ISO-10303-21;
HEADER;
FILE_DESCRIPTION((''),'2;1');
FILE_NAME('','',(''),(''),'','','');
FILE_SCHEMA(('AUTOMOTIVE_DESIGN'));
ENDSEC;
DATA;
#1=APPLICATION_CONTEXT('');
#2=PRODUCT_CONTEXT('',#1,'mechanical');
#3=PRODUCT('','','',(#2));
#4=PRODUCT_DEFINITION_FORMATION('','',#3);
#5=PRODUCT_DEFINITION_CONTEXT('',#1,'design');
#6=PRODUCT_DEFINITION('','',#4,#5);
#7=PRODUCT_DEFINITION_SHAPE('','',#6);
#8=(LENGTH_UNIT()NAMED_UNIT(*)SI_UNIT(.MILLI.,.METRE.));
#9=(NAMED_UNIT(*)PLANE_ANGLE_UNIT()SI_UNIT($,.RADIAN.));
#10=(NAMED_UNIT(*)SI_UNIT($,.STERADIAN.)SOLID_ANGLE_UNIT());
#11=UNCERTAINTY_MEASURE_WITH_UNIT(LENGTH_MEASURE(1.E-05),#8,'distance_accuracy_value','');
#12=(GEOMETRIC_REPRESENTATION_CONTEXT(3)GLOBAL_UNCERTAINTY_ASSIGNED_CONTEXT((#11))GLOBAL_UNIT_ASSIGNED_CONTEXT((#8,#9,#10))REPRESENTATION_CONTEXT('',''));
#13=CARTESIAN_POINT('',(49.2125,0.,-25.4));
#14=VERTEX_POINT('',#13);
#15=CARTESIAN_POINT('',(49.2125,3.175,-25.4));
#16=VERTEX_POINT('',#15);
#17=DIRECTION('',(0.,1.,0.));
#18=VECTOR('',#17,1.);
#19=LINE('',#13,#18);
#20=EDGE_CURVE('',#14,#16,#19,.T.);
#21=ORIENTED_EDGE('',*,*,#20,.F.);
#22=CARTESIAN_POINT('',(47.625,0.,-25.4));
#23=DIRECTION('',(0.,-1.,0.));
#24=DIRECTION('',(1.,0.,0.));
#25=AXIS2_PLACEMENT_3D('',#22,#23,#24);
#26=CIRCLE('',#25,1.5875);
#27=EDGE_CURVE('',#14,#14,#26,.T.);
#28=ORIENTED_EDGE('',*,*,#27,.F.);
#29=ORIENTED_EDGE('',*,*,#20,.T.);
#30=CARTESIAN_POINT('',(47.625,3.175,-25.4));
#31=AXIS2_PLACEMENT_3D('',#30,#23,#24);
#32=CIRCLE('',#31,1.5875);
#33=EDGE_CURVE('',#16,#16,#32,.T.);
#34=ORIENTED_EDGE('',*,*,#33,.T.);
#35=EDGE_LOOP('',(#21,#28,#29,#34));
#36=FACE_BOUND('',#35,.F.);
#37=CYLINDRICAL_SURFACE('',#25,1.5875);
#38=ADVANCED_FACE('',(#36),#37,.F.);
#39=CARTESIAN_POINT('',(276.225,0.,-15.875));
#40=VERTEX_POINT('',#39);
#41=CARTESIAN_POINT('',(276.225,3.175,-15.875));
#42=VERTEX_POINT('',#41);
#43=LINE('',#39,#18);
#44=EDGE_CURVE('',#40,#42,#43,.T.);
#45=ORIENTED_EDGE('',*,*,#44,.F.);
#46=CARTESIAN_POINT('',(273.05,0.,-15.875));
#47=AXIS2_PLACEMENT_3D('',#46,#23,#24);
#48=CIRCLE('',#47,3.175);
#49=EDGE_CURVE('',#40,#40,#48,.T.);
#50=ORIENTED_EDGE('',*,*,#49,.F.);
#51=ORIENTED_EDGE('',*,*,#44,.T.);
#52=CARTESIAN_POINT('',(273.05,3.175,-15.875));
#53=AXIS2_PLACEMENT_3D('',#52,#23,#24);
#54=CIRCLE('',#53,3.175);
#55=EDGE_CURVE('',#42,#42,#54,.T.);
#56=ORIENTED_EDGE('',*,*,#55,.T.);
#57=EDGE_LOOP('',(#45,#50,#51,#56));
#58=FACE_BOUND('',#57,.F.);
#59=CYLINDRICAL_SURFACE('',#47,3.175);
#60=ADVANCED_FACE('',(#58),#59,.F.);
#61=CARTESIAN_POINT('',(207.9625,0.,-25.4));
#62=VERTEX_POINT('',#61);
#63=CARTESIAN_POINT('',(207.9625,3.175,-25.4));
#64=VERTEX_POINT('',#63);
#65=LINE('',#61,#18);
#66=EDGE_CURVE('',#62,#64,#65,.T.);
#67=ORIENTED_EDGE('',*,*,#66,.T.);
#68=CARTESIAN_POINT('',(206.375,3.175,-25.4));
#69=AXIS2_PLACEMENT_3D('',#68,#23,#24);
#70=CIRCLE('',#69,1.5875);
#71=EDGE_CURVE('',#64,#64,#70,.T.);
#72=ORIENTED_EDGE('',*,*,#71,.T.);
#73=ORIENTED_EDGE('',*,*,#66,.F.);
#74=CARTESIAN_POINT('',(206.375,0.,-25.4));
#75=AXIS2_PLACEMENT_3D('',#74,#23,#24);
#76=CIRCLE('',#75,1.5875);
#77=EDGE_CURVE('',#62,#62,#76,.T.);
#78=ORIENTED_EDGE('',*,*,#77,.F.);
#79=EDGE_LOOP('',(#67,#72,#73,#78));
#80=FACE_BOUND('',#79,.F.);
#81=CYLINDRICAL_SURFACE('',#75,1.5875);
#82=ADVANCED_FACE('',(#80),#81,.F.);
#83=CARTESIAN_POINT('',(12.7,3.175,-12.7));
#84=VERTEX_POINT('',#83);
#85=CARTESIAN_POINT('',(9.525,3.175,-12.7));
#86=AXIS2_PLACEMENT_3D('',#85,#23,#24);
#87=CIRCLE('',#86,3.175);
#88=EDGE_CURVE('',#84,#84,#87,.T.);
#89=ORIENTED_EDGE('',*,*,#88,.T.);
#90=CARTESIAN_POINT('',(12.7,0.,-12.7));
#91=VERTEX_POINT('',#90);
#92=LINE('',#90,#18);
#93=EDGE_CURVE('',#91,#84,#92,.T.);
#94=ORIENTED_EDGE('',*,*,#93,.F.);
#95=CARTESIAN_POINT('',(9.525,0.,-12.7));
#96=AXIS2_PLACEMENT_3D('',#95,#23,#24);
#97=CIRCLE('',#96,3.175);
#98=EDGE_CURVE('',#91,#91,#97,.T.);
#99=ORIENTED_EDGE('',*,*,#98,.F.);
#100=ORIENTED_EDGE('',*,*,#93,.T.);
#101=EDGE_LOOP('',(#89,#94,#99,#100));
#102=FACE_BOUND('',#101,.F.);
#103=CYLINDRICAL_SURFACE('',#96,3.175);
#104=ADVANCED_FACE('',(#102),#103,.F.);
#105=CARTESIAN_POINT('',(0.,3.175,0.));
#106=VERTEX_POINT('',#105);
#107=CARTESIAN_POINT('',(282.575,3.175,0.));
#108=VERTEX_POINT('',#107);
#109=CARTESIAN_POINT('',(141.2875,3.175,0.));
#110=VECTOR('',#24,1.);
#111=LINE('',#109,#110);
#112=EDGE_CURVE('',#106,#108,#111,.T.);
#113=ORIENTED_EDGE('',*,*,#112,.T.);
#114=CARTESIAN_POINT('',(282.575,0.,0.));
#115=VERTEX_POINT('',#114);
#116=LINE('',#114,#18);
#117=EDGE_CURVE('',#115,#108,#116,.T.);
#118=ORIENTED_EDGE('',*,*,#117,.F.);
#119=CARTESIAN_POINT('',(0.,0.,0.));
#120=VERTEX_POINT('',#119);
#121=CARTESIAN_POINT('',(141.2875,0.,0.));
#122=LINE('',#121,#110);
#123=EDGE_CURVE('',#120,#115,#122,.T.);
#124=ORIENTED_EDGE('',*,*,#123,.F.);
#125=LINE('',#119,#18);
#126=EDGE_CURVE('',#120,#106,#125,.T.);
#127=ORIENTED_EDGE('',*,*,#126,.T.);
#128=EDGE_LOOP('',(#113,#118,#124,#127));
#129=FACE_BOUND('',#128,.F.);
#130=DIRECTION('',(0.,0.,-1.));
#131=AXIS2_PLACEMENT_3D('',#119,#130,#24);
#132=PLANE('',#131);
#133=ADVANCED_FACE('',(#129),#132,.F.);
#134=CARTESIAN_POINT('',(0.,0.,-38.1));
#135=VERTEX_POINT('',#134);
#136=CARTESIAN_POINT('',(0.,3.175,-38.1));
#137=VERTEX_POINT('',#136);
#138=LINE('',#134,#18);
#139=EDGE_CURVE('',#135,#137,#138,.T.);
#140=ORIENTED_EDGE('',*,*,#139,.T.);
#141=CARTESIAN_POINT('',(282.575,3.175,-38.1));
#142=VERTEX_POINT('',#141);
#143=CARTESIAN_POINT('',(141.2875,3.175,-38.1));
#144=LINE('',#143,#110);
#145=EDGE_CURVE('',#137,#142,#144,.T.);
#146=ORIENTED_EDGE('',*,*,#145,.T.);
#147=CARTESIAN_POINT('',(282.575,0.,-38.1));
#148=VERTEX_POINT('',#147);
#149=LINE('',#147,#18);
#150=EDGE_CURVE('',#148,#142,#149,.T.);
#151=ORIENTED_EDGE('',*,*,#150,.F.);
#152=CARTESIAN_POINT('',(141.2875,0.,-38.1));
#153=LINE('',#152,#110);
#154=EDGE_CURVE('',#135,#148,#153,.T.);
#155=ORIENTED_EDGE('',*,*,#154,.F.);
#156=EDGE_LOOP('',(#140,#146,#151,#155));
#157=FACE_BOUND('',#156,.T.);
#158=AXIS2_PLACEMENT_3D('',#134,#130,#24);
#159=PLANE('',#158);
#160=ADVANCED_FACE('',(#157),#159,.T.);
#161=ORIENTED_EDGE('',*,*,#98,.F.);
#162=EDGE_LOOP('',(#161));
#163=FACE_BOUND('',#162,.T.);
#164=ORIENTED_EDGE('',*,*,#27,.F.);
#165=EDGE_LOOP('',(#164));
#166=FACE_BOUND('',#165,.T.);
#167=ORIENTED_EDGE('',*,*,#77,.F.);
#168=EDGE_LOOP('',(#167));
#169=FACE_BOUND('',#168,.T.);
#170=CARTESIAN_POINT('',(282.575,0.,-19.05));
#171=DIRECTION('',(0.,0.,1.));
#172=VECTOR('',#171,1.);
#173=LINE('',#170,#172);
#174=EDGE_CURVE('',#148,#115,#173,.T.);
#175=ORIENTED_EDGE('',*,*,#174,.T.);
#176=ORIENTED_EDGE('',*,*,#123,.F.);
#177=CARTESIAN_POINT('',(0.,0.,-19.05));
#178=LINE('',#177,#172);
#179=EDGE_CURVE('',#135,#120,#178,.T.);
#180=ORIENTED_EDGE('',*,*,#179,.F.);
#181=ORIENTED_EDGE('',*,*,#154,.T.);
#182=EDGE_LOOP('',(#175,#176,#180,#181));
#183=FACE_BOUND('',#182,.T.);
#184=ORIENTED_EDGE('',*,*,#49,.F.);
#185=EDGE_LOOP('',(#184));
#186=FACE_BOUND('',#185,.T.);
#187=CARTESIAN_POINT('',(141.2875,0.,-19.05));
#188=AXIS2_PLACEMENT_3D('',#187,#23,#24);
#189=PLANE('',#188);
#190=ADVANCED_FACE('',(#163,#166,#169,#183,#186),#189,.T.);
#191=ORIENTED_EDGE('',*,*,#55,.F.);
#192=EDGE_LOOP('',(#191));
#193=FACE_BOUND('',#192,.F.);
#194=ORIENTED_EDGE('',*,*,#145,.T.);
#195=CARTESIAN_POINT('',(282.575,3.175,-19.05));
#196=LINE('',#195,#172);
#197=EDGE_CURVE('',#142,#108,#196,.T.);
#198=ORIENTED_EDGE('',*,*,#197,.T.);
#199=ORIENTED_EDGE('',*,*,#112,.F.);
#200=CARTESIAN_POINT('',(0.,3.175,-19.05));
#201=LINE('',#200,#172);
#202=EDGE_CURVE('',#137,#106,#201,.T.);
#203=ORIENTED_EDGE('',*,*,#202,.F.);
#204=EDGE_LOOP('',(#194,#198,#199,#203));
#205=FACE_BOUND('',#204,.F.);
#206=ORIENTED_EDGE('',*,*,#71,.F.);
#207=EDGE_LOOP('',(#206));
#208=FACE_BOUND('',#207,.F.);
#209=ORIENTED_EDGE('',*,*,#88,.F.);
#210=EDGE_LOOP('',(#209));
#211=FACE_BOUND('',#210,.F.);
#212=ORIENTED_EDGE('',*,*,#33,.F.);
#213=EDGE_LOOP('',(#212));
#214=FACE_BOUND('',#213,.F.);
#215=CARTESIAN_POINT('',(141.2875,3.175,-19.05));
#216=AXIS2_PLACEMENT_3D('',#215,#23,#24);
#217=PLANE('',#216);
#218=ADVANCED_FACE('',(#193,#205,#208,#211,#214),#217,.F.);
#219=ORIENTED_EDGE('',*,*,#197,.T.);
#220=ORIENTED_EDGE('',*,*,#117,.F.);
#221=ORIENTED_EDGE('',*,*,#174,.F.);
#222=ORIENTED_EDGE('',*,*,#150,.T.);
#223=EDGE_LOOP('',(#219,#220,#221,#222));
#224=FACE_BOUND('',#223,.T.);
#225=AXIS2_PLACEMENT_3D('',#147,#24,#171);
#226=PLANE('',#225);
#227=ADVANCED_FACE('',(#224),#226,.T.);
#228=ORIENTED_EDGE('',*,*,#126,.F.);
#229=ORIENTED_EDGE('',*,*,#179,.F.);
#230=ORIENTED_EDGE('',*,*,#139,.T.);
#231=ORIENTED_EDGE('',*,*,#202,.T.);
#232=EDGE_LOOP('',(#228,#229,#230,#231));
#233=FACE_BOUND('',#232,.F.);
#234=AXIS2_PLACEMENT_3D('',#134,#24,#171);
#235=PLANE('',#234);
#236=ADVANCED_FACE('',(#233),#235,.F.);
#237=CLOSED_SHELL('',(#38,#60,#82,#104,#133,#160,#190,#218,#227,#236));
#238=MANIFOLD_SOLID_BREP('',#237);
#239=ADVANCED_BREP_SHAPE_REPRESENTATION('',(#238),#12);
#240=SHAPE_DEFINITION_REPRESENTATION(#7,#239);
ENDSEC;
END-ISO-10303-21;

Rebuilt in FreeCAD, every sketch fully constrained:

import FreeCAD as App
import Part
import Sketcher
from FreeCAD import Vector
Q = App.Units.Quantity

doc = App.newDocument("Part")
body = doc.addObject("PartDesign::Body", "Body")

sketch1 = body.newObject("Sketcher::SketchObject", "Sketch")
sketch1.AttachmentSupport = (doc.getObject("XZ_Plane"), [""])
sketch1.MapMode = "FlatFace"
sketch1.addGeometry([
    Part.LineSegment(Vector(0, 0, 0), Vector(0, -38, 0)),
    Part.LineSegment(Vector(0, -38, 0), Vector(283, -38, 0)),
    Part.LineSegment(Vector(283, -38, 0), Vector(283, 0, 0)),
    Part.LineSegment(Vector(283, 0, 0), Vector(0, 0, 0)),
], False)
sketch1.addConstraint([
    Sketcher.Constraint("Coincident", 0, 2, 1, 1),
    Sketcher.Constraint("Coincident", 1, 2, 2, 1),
    Sketcher.Constraint("Coincident", 2, 2, 3, 1),
    Sketcher.Constraint("Coincident", 3, 2, 0, 1),
    Sketcher.Constraint("Vertical", 0),
    Sketcher.Constraint("Horizontal", 1),
    Sketcher.Constraint("Vertical", 2),
    Sketcher.Constraint("Horizontal", 3),
    Sketcher.Constraint("Coincident", 3, 2, -1, 1),
    Sketcher.Constraint("DistanceY", 0, 2, 0, 1, Q("1.5 in")),
    Sketcher.Constraint("DistanceX", 1, 1, 1, 2, Q("11.125 in")),
])
pad1 = body.newObject("PartDesign::Pad", "Pad")
pad1.Profile = sketch1
pad1.Length = Q("0.125 in")
pad1.Reversed = True

sketch2 = body.newObject("Sketcher::SketchObject", "Sketch001")
sketch2.AttachmentSupport = (doc.getObject("XZ_Plane"), [""])
sketch2.MapMode = "FlatFace"
sketch2.addGeometry([
    Part.Circle(Vector(9.5, -12.7, 0), Vector(0, 0, 1), 3.2),
    Part.Circle(Vector(273.1, -15.9, 0), Vector(0, 0, 1), 3.2),
    Part.Circle(Vector(47.6, -25.4, 0), Vector(0, 0, 1), 1.6),
    Part.Circle(Vector(206.4, -25.4, 0), Vector(0, 0, 1), 1.6),
], False)
sketch2.addConstraint([
    Sketcher.Constraint("Equal", 0, 1),
    Sketcher.Constraint("Equal", 2, 3),
    Sketcher.Constraint("Horizontal", 2, 3, 3, 3),
    Sketcher.Constraint("Diameter", 0, Q("0.25 in")),
    Sketcher.Constraint("Diameter", 2, Q("0.125 in")),
    Sketcher.Constraint("DistanceY", 2, 3, -1, 1, Q("1 in")),
    Sketcher.Constraint("DistanceY", 0, 3, -1, 1, Q("0.5 in")),
    Sketcher.Constraint("DistanceX", 0, 3, 2, 3, Q("1.5 in")),
    Sketcher.Constraint("DistanceX", -1, 1, 1, 3, Q("10.75 in")),
    Sketcher.Constraint("DistanceX", 2, 3, 3, 3, Q("6.25 in")),
    Sketcher.Constraint("DistanceX", -1, 1, 0, 3, Q("0.375 in")),
    Sketcher.Constraint("DistanceY", 1, 3, -1, 1, Q("0.625 in")),
])
pocket1 = body.newObject("PartDesign::Pocket", "Pocket")
pocket1.Profile = sketch2
pocket1.Type = "ThroughAll"

doc.recompute()
